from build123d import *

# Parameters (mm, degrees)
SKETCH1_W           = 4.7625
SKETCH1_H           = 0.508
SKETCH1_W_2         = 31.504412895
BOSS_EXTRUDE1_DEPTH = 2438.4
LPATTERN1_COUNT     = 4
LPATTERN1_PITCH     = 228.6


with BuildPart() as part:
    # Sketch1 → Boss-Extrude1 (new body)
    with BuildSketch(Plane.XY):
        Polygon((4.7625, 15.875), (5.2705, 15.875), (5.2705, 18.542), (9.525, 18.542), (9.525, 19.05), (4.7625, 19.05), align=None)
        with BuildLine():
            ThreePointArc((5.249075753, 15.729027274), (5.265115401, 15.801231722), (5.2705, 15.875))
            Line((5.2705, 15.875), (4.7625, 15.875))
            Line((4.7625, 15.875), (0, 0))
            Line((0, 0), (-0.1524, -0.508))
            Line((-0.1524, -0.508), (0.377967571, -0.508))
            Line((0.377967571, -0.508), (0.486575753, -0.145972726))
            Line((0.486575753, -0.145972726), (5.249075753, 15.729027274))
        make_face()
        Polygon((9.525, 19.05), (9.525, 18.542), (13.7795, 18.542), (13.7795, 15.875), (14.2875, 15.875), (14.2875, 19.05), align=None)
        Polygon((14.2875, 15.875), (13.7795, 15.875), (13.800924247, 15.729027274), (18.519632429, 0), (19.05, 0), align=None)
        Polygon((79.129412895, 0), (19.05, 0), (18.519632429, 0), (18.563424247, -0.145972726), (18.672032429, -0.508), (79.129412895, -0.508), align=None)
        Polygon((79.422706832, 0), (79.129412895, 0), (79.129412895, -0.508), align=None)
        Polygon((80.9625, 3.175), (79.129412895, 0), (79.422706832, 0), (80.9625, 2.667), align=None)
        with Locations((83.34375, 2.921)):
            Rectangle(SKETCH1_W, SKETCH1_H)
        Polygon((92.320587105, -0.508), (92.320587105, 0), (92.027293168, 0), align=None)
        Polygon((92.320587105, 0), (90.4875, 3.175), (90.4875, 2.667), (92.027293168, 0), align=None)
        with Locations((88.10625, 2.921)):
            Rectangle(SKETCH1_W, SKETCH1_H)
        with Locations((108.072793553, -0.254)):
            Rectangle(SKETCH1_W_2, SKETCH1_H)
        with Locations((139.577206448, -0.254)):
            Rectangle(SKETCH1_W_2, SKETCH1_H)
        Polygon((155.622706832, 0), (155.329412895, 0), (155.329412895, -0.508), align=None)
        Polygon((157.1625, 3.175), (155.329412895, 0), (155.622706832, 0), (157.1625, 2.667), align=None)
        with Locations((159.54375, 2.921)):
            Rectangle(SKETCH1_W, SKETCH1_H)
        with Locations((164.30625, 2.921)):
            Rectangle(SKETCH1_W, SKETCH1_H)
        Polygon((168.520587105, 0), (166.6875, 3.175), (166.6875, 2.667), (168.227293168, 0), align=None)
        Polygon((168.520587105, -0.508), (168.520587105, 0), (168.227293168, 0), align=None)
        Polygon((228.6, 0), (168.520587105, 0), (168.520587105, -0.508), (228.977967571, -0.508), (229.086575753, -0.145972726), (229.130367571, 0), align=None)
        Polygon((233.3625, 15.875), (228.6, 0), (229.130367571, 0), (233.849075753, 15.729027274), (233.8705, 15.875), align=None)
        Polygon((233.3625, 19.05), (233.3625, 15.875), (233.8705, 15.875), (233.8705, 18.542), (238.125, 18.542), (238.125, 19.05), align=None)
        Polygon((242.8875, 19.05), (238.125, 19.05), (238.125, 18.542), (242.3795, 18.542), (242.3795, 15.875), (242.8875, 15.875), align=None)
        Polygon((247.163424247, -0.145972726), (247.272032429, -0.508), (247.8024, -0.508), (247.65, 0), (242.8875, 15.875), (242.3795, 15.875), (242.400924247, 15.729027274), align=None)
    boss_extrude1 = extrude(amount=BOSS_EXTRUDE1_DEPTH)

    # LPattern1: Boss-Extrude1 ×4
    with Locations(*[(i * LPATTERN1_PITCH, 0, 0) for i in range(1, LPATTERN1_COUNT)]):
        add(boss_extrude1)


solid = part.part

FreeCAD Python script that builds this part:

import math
import FreeCAD as App
import Part
import Sketcher

V = App.Vector
Q = App.Units.Quantity

doc = App.newDocument("Part")
body = doc.addObject("PartDesign::Body", "Body")

sketch1 = doc.addObject("Sketcher::SketchObject", "Sketch")
body.addObject(sketch1)
sketch1.AttachmentSupport = (doc.XY_Plane, [""])
sketch1.MapMode = "FlatFace"
sketch1.addGeometry([
    Part.LineSegment(V(5.27, 15.88, 0), V(5.27, 18.54, 0)),
    Part.LineSegment(V(5.27, 18.54, 0), V(13.78, 18.54, 0)),
    Part.LineSegment(V(13.78, 18.54, 0), V(13.78, 15.88, 0)),
    Part.LineSegment(V(13.78, 15.88, 0), V(13.8, 15.73, 0)),
    Part.LineSegment(V(13.8, 15.73, 0), V(18.52, 0, 0)),
    Part.LineSegment(V(18.52, 0, 0), V(18.56, -0.15, 0)),
    Part.LineSegment(V(18.56, -0.15, 0), V(18.67, -0.51, 0)),
    Part.LineSegment(V(18.67, -0.51, 0), V(79.13, -0.51, 0)),
    Part.LineSegment(V(79.13, -0.51, 0), V(79.42, 0, 0)),
    Part.LineSegment(V(79.42, 0, 0), V(80.96, 2.67, 0)),
    Part.LineSegment(V(80.96, 2.67, 0), V(90.49, 2.67, 0)),
    Part.LineSegment(V(90.49, 2.67, 0), V(92.03, 0, 0)),
    Part.LineSegment(V(92.03, 0, 0), V(92.32, -0.51, 0)),
    Part.LineSegment(V(92.32, -0.51, 0), V(155.33, -0.51, 0)),
    Part.LineSegment(V(155.33, -0.51, 0), V(155.62, 0, 0)),
    Part.LineSegment(V(155.62, 0, 0), V(157.16, 2.67, 0)),
    Part.LineSegment(V(157.16, 2.67, 0), V(166.69, 2.67, 0)),
    Part.LineSegment(V(166.69, 2.67, 0), V(168.23, 0, 0)),
    Part.LineSegment(V(168.23, 0, 0), V(168.52, -0.51, 0)),
    Part.LineSegment(V(168.52, -0.51, 0), V(228.98, -0.51, 0)),
    Part.LineSegment(V(228.98, -0.51, 0), V(229.09, -0.15, 0)),
    Part.LineSegment(V(229.09, -0.15, 0), V(229.13, 0, 0)),
    Part.LineSegment(V(229.13, 0, 0), V(233.85, 15.73, 0)),
    Part.LineSegment(V(233.85, 15.73, 0), V(233.87, 15.88, 0)),
    Part.LineSegment(V(233.87, 15.88, 0), V(233.87, 18.54, 0)),
    Part.LineSegment(V(233.87, 18.54, 0), V(242.38, 18.54, 0)),
    Part.LineSegment(V(242.38, 18.54, 0), V(242.38, 15.88, 0)),
    Part.LineSegment(V(242.38, 15.88, 0), V(242.4, 15.73, 0)),
    Part.LineSegment(V(242.4, 15.73, 0), V(247.16, -0.15, 0)),
    Part.LineSegment(V(247.16, -0.15, 0), V(247.27, -0.51, 0)),
    Part.LineSegment(V(247.27, -0.51, 0), V(247.8, -0.51, 0)),
    Part.LineSegment(V(247.8, -0.51, 0), V(242.89, 15.88, 0)),
    Part.LineSegment(V(242.89, 15.88, 0), V(242.89, 19.05, 0)),
    Part.LineSegment(V(242.89, 19.05, 0), V(233.36, 19.05, 0)),
    Part.LineSegment(V(233.36, 19.05, 0), V(233.36, 15.88, 0)),
    Part.LineSegment(V(233.36, 15.88, 0), V(228.6, 0, 0)),
    Part.LineSegment(V(228.6, 0, 0), V(168.52, 0, 0)),
    Part.LineSegment(V(168.52, 0, 0), V(166.69, 3.17, 0)),
    Part.LineSegment(V(166.69, 3.17, 0), V(157.16, 3.17, 0)),
    Part.LineSegment(V(157.16, 3.17, 0), V(155.33, 0, 0)),
    Part.LineSegment(V(155.33, 0, 0), V(92.32, 0, 0)),
    Part.LineSegment(V(92.32, 0, 0), V(90.49, 3.17, 0)),
    Part.LineSegment(V(90.49, 3.17, 0), V(80.96, 3.17, 0)),
    Part.LineSegment(V(80.96, 3.17, 0), V(79.13, 0, 0)),
    Part.LineSegment(V(79.13, 0, 0), V(19.05, 0, 0)),
    Part.LineSegment(V(19.05, 0, 0), V(14.29, 15.88, 0)),
    Part.LineSegment(V(14.29, 15.88, 0), V(14.29, 19.05, 0)),
    Part.LineSegment(V(14.29, 19.05, 0), V(4.76, 19.05, 0)),
    Part.LineSegment(V(4.76, 19.05, 0), V(4.76, 15.88, 0)),
    Part.LineSegment(V(4.76, 15.88, 0), V(-0.15, -0.51, 0)),
    Part.LineSegment(V(-0.15, -0.51, 0), V(0.38, -0.51, 0)),
    Part.LineSegment(V(0.38, -0.51, 0), V(0.49, -0.15, 0)),
    Part.LineSegment(V(0.49, -0.15, 0), V(5.25, 15.73, 0)),
    Part.ArcOfCircle(Part.Circle(V(4.76, 15.87, 0), V(0, 0, 1), 0.51), math.radians(-16.7), math.radians(0)),
], False)
sketch1.addConstraint([
    Sketcher.Constraint("Coincident", 0, 2, 1, 1),
    Sketcher.Constraint("Coincident", 1, 2, 2, 1),
    Sketcher.Constraint("Coincident", 2, 2, 3, 1),
    Sketcher.Constraint("Coincident", 3, 2, 4, 1),
    Sketcher.Constraint("Coincident", 4, 2, 5, 1),
    Sketcher.Constraint("Coincident", 5, 2, 6, 1),
    Sketcher.Constraint("Coincident", 6, 2, 7, 1),
    Sketcher.Constraint("Coincident", 7, 2, 8, 1),
    Sketcher.Constraint("Coincident", 8, 2, 9, 1),
    Sketcher.Constraint("Coincident", 9, 2, 10, 1),
    Sketcher.Constraint("Coincident", 10, 2, 11, 1),
    Sketcher.Constraint("Coincident", 11, 2, 12, 1),
    Sketcher.Constraint("Coincident", 12, 2, 13, 1),
    Sketcher.Constraint("Coincident", 13, 2, 14, 1),
    Sketcher.Constraint("Coincident", 14, 2, 15, 1),
    Sketcher.Constraint("Coincident", 15, 2, 16, 1),
    Sketcher.Constraint("Coincident", 16, 2, 17, 1),
    Sketcher.Constraint("Coincident", 17, 2, 18, 1),
    Sketcher.Constraint("Coincident", 18, 2, 19, 1),
    Sketcher.Constraint("Coincident", 19, 2, 20, 1),
    Sketcher.Constraint("Coincident", 20, 2, 21, 1),
    Sketcher.Constraint("Coincident", 21, 2, 22, 1),
    Sketcher.Constraint("Coincident", 22, 2, 23, 1),
    Sketcher.Constraint("Coincident", 23, 2, 24, 1),
    Sketcher.Constraint("Coincident", 24, 2, 25, 1),
    Sketcher.Constraint("Coincident", 25, 2, 26, 1),
    Sketcher.Constraint("Coincident", 26, 2, 27, 1),
    Sketcher.Constraint("Coincident", 27, 2, 28, 1),
    Sketcher.Constraint("Coincident", 28, 2, 29, 1),
    Sketcher.Constraint("Coincident", 29, 2, 30, 1),
    Sketcher.Constraint("Coincident", 30, 2, 31, 1),
    Sketcher.Constraint("Coincident", 31, 2, 32, 1),
    Sketcher.Constraint("Coincident", 32, 2, 33, 1),
    Sketcher.Constraint("Coincident", 33, 2, 34, 1),
    Sketcher.Constraint("Coincident", 34, 2, 35, 1),
    Sketcher.Constraint("Coincident", 35, 2, 36, 1),
    Sketcher.Constraint("Coincident", 36, 2, 37, 1),
    Sketcher.Constraint("Coincident", 37, 2, 38, 1),
    Sketcher.Constraint("Coincident", 38, 2, 39, 1),
    Sketcher.Constraint("Coincident", 39, 2, 40, 1),
    Sketcher.Constraint("Coincident", 40, 2, 41, 1),
    Sketcher.Constraint("Coincident", 41, 2, 42, 1),
    Sketcher.Constraint("Coincident", 42, 2, 43, 1),
    Sketcher.Constraint("Coincident", 43, 2, 44, 1),
    Sketcher.Constraint("Coincident", 44, 2, 45, 1),
    Sketcher.Constraint("Coincident", 45, 2, 46, 1),
    Sketcher.Constraint("Coincident", 46, 2, 47, 1),
    Sketcher.Constraint("Coincident", 47, 2, 48, 1),
    Sketcher.Constraint("Coincident", 48, 2, 49, 1),
    Sketcher.Constraint("Coincident", 49, 2, 50, 1),
    Sketcher.Constraint("Coincident", 50, 2, 51, 1),
    Sketcher.Constraint("Coincident", 51, 2, 52, 1),
    Sketcher.Constraint("Tangent", 52, 2, 53, 1),
    Sketcher.Constraint("Tangent", 53, 2, 0, 1),
    Sketcher.Constraint("Vertical", 0),
    Sketcher.Constraint("Horizontal", 1),
    Sketcher.Constraint("Vertical", 2),
    Sketcher.Constraint("Horizontal", 7),
    Sketcher.Constraint("Horizontal", 10),
    Sketcher.Constraint("Horizontal", 13),
    Sketcher.Constraint("Horizontal", 16),
    Sketcher.Constraint("Horizontal", 19),
    Sketcher.Constraint("Vertical", 24),
    Sketcher.Constraint("Horizontal", 25),
    Sketcher.Constraint("Vertical", 26),
    Sketcher.Constraint("Horizontal", 30),
    Sketcher.Constraint("Vertical", 32),
    Sketcher.Constraint("Horizontal", 33),
    Sketcher.Constraint("Vertical", 34),
    Sketcher.Constraint("Horizontal", 36),
    Sketcher.Constraint("Horizontal", 38),
    Sketcher.Constraint("Horizontal", 40),
    Sketcher.Constraint("Horizontal", 42),
    Sketcher.Constraint("Horizontal", 44),
    Sketcher.Constraint("Vertical", 46),
    Sketcher.Constraint("Horizontal", 47),
    Sketcher.Constraint("Vertical", 48),
    Sketcher.Constraint("Horizontal", 50),
    Sketcher.Constraint("Coincident", 48, 2, 53, 3),
    Sketcher.Constraint("PointOnObject", 4, 2, -1),
    Sketcher.Constraint("PointOnObject", 8, 2, -1),
    Sketcher.Constraint("PointOnObject", 11, 2, -1),
    Sketcher.Constraint("PointOnObject", 14, 2, -1),
    Sketcher.Constraint("PointOnObject", 17, 2, -1),
    Sketcher.Constraint("PointOnObject", 21, 2, -1),
    Sketcher.Constraint("PointOnObject", 35, 2, -1),
    Sketcher.Constraint("PointOnObject", 39, 2, -1),
    Sketcher.Constraint("PointOnObject", 43, 2, -1),
    Sketcher.Constraint("Parallel", 4, 5),
    Sketcher.Constraint("Parallel", 5, 6),
    Sketcher.Constraint("Parallel", 8, 9),
    Sketcher.Constraint("Parallel", 11, 12),
    Sketcher.Constraint("Parallel", 9, 14),
    Sketcher.Constraint("Parallel", 14, 15),
    Sketcher.Constraint("Parallel", 12, 17),
    Sketcher.Constraint("Parallel", 17, 18),
    Sketcher.Constraint("Parallel", 20, 21),
    Sketcher.Constraint("Parallel", 21, 22),
    Sketcher.Constraint("Parallel", 3, 27),
    Sketcher.Constraint("Parallel", 6, 28),
    Sketcher.Constraint("Parallel", 28, 29),
    Sketcher.Constraint("Parallel", 29, 31),
    Sketcher.Constraint("Parallel", 22, 35),
    Sketcher.Constraint("Parallel", 18, 37),
    Sketcher.Constraint("Parallel", 15, 39),
    Sketcher.Constraint("Parallel", 37, 41),
    Sketcher.Constraint("Parallel", 39, 43),
    Sketcher.Constraint("Parallel", 31, 45),
    Sketcher.Constraint("Parallel", 35, 49),
    Sketcher.Constraint("Parallel", 49, 51),
    Sketcher.Constraint("Parallel", 51, 52),
    Sketcher.Constraint("Horizontal", 53, 3, 2, 2),
    Sketcher.Constraint("Horizontal", 7, 2, 12, 2),
    Sketcher.Constraint("Horizontal", 10, 2, 15, 2),
    Sketcher.Constraint("Horizontal", 13, 2, 18, 2),
    Sketcher.Constraint("Horizontal", 5, 2, 20, 2),
    Sketcher.Constraint("Horizontal", 3, 2, 22, 2),
    Sketcher.Constraint("Horizontal", 2, 2, 23, 2),
    Sketcher.Constraint("Horizontal", 1, 2, 24, 2),
    Sketcher.Constraint("Horizontal", 23, 2, 26, 2),
    Sketcher.Constraint("Horizontal", 22, 2, 27, 2),
    Sketcher.Constraint("Horizontal", 20, 2, 28, 2),
    Sketcher.Constraint("Horizontal", 19, 2, 29, 2),
    Sketcher.Constraint("Horizontal", 26, 2, 31, 2),
    Sketcher.Constraint("Horizontal", 31, 2, 34, 2),
    Sketcher.Constraint("Horizontal", 38, 2, 41, 2),
    Sketcher.Constraint("Horizontal", 34, 2, 45, 2),
    Sketcher.Constraint("Horizontal", 33, 2, 46, 2),
    Sketcher.Constraint("Horizontal", 30, 2, 49, 2),
    Sketcher.Constraint("Horizontal", 28, 2, 51, 2),
    Sketcher.Constraint("Horizontal", 27, 2, 52, 2),
    Sketcher.Constraint("Vertical", 18, 2, 36, 2),
    Sketcher.Constraint("Vertical", 16, 2, 37, 2),
    Sketcher.Constraint("Vertical", 15, 2, 38, 2),
    Sketcher.Constraint("Vertical", 12, 2, 40, 2),
    Sketcher.Constraint("Vertical", 9, 2, 42, 2),
    Sketcher.Constraint("Equal", 10, 16),
    Sketcher.Constraint("Equal", 7, 19),
    Sketcher.Constraint("Equal", 1, 25),
    Sketcher.Constraint("Equal", 16, 33),
    Sketcher.Constraint("Equal", 36, 44),
    Sketcher.Constraint("Equal", 42, 47),
    Sketcher.Constraint("Equal", 30, 50),
    Sketcher.Constraint("Equal", 9, 11),
    Sketcher.Constraint("Equal", 4, 22),
    Sketcher.Constraint("Equal", 3, 23),
    Sketcher.Constraint("Equal", 28, 35),
    Sketcher.Constraint("Radius", 53, Q("0.02 in")),
    Sketcher.Constraint("DistanceX", -1, 1, 35, 2, Q("9 in")),
    Sketcher.Constraint("Angle", 8, Q("60 deg")),
    Sketcher.Constraint("DistanceX", 1, 1, 1, 2, Q("0.335 in")),
    Sketcher.Constraint("DistanceX", 10, 1, 10, 2, Q("0.375 in")),
    Sketcher.Constraint("DistanceY", 0, 1, 0, 2, Q("0.105 in")),
    Sketcher.Constraint("DistanceY", 32, 1, 32, 2, Q("0.125 in")),
    Sketcher.Constraint("DistanceY", -1, 1, 0, 2, Q("0.73 in")),
    Sketcher.Constraint("DistanceY", 6, 2, -1, 1, Q("0.02 in")),
    Sketcher.Constraint("DistanceX", -1, 1, 44, 2, Q("0.75 in")),
    Sketcher.Constraint("Distance", 5, Q("0.006 in")),
    Sketcher.Constraint("DistanceX", -1, 1, 9, 2, Q("3.1875 in")),
    Sketcher.Constraint("DistanceY", -1, 1, 9, 2, Q("0.105 in")),
])
pad1 = doc.addObject("PartDesign::Pad", "Pad")
body.addObject(pad1)
pad1.Profile = sketch1
pad1.Length = Q("96 in")
doc.recompute()

linearpattern = doc.addObject("PartDesign::LinearPattern", "LinearPattern")
body.addObject(linearpattern)
linearpattern.Originals = [pad1]
linearpattern.Direction = (doc.X_Axis, [""])
linearpattern.Mode = "offset"
linearpattern.Offset = Q("9 in")
linearpattern.Occurrences = 4
body.Tip = linearpattern

doc.recompute()
